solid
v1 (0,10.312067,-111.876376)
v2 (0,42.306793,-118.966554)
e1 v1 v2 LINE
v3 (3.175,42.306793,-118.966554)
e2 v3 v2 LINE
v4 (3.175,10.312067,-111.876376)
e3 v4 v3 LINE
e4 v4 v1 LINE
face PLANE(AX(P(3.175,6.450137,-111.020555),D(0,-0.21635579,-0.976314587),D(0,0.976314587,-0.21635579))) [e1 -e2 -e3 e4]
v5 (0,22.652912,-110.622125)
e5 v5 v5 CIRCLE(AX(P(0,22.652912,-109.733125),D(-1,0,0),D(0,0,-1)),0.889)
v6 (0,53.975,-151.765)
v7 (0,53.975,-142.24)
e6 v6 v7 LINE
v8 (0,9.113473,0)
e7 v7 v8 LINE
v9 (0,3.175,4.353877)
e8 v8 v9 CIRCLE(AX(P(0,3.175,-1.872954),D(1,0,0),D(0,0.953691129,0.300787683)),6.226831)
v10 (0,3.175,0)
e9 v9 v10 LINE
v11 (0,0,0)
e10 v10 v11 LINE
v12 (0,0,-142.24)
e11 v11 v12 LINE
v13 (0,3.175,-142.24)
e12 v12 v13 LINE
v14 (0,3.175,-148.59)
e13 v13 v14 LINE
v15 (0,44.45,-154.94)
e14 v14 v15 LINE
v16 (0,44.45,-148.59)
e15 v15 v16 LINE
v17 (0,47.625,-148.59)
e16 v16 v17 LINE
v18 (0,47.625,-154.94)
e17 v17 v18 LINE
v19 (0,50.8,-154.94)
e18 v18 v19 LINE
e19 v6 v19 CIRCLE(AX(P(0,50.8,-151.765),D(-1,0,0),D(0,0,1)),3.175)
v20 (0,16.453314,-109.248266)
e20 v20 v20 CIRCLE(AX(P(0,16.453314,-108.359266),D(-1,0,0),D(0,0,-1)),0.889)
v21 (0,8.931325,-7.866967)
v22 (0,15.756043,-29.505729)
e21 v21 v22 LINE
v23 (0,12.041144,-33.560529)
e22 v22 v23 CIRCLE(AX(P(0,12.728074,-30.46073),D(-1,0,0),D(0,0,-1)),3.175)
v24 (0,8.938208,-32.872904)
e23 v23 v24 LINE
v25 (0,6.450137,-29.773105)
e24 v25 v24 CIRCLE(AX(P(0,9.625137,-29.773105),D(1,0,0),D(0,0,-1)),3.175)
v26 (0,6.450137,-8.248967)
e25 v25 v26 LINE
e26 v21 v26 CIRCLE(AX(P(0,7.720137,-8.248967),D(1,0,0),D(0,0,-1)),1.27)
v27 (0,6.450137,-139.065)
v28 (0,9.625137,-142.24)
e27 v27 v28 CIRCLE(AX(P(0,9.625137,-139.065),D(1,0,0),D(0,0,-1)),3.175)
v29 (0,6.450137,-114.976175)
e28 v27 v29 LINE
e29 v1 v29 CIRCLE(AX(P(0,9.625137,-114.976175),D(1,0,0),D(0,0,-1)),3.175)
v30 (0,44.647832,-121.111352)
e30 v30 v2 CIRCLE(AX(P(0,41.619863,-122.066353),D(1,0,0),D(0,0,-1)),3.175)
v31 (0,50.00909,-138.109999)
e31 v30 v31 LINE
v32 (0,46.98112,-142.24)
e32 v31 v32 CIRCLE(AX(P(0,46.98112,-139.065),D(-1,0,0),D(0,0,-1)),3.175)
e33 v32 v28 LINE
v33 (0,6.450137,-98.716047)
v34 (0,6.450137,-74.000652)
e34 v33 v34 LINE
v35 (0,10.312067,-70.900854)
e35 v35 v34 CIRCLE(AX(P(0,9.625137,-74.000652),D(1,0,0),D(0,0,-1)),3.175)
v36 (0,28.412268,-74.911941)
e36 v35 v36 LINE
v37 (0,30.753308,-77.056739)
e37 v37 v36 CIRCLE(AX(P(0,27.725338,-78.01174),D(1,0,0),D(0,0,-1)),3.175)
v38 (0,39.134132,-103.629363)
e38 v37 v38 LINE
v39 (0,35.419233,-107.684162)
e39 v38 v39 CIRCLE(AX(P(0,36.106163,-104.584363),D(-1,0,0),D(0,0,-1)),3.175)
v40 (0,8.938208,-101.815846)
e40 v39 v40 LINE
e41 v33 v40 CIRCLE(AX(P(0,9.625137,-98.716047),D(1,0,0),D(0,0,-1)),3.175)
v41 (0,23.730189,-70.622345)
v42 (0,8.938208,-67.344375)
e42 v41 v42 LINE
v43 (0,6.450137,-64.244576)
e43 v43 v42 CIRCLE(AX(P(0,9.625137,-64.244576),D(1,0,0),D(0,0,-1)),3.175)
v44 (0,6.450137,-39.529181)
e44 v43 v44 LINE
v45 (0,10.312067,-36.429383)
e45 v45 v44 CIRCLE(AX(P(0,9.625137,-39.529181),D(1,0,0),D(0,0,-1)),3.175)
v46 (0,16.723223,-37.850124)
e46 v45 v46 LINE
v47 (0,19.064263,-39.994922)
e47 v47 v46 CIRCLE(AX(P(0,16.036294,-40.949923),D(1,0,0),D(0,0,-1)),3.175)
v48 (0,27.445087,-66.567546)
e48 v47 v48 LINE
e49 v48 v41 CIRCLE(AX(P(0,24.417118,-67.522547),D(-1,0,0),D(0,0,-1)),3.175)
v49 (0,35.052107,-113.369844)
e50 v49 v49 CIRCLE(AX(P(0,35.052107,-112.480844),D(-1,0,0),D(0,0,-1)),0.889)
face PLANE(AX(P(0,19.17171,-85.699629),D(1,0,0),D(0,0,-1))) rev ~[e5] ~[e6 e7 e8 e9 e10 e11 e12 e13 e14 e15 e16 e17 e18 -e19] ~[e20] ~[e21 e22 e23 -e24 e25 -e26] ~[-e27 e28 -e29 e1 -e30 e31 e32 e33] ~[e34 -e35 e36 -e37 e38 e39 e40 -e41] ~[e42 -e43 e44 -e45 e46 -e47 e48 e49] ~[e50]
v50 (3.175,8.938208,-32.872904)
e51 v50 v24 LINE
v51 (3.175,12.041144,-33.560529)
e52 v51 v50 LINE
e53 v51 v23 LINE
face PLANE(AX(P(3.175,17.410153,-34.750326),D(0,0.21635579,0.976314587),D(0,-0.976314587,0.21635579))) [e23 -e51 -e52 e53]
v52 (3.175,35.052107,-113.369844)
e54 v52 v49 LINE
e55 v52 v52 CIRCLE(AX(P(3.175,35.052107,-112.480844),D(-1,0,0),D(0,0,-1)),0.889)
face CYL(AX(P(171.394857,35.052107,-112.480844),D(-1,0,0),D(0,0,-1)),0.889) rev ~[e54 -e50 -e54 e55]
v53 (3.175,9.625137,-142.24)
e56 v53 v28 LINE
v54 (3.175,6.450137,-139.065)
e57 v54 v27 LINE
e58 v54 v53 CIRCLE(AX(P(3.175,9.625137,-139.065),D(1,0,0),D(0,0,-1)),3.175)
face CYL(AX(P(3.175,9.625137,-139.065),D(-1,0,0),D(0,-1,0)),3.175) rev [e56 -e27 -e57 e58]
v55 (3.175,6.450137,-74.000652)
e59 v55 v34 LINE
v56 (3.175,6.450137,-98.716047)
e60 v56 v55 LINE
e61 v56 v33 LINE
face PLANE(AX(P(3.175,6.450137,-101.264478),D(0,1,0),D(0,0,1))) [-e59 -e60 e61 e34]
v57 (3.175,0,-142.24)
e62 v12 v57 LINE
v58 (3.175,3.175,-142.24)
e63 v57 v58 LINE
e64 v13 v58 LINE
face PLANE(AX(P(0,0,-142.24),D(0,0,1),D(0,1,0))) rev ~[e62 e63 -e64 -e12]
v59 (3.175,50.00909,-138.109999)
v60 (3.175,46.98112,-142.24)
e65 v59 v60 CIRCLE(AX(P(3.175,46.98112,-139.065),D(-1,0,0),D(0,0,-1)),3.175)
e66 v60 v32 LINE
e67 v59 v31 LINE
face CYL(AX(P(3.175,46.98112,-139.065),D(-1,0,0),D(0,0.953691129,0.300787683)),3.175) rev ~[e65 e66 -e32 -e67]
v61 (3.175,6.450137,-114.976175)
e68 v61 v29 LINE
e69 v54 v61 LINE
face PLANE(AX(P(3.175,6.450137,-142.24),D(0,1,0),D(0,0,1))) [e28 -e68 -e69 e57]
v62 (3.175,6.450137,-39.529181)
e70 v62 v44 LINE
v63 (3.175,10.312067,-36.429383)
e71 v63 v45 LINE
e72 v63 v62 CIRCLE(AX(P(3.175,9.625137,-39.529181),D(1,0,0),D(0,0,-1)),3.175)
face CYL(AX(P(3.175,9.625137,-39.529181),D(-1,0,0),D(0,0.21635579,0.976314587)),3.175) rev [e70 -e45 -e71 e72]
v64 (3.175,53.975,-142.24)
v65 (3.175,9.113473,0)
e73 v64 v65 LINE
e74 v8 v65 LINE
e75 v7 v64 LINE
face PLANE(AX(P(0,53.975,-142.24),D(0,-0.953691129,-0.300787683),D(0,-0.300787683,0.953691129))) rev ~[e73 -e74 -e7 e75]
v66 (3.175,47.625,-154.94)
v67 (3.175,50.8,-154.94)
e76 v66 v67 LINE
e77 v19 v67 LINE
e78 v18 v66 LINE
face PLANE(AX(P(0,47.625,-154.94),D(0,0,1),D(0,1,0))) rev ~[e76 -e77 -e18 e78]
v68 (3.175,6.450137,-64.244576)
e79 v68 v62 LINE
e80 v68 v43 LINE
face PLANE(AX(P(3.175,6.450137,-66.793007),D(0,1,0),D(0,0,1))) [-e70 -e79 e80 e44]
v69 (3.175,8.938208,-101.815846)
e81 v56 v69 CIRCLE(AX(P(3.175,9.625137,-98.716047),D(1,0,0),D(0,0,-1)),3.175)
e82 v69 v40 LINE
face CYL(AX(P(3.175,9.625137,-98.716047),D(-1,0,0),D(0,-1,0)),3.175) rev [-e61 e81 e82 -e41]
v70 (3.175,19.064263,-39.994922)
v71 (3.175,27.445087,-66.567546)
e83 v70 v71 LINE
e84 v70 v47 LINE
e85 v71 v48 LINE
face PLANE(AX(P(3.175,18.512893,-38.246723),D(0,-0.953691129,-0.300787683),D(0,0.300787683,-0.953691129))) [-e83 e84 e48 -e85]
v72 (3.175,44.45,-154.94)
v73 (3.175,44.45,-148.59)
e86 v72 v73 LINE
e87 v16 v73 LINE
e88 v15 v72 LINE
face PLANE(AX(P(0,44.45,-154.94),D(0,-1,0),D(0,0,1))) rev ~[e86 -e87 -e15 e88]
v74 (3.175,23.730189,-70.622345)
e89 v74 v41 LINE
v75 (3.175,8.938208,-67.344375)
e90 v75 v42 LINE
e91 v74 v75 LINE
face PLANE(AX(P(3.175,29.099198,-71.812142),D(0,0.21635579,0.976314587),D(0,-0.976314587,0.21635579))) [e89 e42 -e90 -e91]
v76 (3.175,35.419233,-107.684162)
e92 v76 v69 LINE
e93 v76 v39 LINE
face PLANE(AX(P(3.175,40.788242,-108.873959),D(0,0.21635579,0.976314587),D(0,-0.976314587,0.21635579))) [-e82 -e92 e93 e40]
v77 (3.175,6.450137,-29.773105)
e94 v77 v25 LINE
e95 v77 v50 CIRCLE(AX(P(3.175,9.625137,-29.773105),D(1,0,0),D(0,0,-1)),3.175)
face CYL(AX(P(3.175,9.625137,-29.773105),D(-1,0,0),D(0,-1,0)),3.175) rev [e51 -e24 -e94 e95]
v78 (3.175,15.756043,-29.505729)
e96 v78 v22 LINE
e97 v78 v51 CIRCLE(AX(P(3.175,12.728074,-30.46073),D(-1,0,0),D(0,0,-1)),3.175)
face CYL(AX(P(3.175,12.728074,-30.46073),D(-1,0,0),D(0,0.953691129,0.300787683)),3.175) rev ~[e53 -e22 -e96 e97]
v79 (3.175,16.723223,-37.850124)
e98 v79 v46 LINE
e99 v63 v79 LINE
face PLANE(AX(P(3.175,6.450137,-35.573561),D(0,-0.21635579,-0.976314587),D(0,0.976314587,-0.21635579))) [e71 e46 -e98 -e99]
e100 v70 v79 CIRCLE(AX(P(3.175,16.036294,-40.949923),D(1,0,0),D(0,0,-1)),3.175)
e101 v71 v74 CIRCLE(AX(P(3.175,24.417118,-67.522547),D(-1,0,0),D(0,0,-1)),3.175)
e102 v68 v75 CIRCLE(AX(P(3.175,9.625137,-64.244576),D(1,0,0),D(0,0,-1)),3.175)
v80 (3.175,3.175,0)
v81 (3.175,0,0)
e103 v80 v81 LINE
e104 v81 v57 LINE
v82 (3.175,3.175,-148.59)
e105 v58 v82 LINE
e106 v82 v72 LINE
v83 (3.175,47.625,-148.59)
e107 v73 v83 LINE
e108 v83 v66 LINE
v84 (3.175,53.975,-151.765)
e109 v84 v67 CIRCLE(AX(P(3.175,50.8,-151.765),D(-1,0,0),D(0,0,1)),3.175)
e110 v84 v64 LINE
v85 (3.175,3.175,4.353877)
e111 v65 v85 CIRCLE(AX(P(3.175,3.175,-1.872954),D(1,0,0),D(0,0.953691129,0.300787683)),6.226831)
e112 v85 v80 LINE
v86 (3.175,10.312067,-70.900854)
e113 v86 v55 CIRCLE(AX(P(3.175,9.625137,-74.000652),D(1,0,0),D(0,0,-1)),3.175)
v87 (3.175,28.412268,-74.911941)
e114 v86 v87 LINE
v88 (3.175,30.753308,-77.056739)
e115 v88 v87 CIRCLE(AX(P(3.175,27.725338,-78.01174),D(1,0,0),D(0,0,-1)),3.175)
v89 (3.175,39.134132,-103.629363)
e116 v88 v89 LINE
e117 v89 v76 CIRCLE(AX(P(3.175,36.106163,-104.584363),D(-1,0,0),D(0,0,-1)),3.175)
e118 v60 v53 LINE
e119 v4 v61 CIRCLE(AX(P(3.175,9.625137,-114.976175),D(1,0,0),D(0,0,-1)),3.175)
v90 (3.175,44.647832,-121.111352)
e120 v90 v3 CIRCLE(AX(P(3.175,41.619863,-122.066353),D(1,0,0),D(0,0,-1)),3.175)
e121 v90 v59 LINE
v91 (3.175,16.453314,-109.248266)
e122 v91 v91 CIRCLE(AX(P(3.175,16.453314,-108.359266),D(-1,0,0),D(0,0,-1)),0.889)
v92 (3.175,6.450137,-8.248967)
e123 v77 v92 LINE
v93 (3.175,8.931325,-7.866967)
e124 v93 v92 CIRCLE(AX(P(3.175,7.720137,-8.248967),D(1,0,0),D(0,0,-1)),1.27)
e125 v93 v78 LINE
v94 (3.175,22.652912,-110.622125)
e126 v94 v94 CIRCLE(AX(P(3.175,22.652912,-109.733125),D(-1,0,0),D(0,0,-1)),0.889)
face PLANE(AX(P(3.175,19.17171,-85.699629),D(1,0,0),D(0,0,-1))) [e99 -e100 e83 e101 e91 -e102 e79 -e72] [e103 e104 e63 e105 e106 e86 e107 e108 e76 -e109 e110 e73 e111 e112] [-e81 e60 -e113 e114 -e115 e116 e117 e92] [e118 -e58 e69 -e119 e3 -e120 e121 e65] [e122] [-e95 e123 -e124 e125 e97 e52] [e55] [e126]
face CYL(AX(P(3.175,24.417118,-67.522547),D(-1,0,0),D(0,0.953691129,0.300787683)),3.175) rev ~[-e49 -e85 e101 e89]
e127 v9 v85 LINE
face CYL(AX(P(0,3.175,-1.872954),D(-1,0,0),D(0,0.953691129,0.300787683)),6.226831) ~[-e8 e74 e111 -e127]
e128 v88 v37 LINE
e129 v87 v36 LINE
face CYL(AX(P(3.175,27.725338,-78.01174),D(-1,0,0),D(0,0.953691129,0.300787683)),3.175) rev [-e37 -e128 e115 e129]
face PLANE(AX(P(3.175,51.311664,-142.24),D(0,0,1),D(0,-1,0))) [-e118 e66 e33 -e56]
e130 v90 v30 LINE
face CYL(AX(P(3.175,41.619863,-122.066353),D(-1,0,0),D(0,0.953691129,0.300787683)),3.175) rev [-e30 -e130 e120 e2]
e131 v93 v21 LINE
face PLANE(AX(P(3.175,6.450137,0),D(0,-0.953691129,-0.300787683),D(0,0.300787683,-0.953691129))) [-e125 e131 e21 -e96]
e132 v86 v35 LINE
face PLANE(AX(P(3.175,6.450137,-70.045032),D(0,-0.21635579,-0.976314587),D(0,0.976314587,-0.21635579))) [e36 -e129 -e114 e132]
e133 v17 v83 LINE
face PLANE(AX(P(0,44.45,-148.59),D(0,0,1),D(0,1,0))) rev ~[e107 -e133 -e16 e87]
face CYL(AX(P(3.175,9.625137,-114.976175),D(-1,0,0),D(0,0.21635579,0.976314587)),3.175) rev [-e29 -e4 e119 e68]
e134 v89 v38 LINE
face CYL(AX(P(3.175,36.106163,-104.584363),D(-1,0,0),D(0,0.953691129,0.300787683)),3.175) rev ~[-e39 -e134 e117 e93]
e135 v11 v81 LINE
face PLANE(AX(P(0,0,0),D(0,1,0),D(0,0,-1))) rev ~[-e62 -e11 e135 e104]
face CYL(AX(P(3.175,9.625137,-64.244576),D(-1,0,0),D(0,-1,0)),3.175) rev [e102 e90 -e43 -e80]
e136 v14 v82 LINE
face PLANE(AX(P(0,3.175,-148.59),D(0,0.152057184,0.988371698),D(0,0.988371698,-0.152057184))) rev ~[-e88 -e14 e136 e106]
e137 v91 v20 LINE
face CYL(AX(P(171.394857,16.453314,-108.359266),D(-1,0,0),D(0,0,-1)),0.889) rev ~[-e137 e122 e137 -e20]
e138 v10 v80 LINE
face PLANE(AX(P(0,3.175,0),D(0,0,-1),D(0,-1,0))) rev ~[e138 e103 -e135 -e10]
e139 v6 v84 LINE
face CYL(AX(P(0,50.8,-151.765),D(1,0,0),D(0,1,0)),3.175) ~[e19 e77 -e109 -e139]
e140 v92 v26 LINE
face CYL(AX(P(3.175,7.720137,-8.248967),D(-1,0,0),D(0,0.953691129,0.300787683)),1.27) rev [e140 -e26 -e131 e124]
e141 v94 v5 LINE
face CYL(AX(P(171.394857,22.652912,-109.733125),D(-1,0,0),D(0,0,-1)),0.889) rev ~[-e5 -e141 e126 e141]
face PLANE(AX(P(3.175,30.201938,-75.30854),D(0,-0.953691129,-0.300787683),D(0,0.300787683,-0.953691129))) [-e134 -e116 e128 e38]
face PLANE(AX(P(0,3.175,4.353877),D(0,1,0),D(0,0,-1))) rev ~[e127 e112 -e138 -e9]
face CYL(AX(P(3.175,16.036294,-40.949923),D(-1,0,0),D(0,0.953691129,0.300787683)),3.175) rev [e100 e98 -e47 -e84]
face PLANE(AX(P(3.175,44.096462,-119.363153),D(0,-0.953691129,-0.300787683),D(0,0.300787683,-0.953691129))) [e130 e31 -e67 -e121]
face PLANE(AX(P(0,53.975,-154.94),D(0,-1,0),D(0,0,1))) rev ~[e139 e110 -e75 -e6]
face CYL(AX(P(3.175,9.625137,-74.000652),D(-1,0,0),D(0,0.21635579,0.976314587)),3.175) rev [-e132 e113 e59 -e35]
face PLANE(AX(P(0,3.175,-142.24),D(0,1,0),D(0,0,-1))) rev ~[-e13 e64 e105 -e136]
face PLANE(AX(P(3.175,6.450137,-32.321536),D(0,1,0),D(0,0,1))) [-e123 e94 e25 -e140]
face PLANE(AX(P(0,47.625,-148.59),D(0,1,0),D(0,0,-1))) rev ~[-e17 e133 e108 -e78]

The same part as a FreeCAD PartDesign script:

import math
import FreeCAD as App
import Part
import Sketcher

V = App.Vector
Q = App.Units.Quantity


def edges_at(feature, points):
    """Names of the edges that pass closest to the given points."""
    edges = feature.Shape.Edges
    near = lambda p: min(range(len(edges)), key=lambda i: edges[i].distToShape(Part.Vertex(*p))[0])
    return sorted({f"Edge{near(p) + 1}" for p in points})


def add_polygon(sketch, points):
    """Adds a closed chain of lines whose ends are joined by coincident constraints."""
    first, n = sketch.GeometryCount, len(points)
    for a, b in zip(points, points[1:] + points[:1]):
        sketch.addGeometry(Part.LineSegment(App.Vector(*a, 0), App.Vector(*b, 0)), False)
    for i in range(n):
        sketch.addConstraint(Sketcher.Constraint("Coincident", first + i, 2, first + (i + 1) % n, 1))

doc = App.newDocument("Part")
body = doc.addObject("PartDesign::Body", "Body")

# Sketch on YZ plane
sketch1 = body.newObject("Sketcher::SketchObject", "Sketch")
sketch1.AttachmentSupport = (doc.getObject("YZ_Plane"), [""])
sketch1.MapMode = "FlatFace"
sketch1.addGeometry([
    Part.LineSegment(V(0, 0, 0), V(0, -142.2, 0)),  # 0
    Part.LineSegment(V(0, -142.2, 0), V(3.2, -142.2, 0)),  # 1
    Part.LineSegment(V(3.2, -142.2, 0), V(3.2, -148.6, 0)),  # 2
    Part.LineSegment(V(3.2, -148.6, 0), V(44.5, -154.9, 0)),  # 3
    Part.LineSegment(V(44.5, -154.9, 0), V(44.5, -148.6, 0)),  # 4
    Part.LineSegment(V(44.5, -148.6, 0), V(47.6, -148.6, 0)),  # 5
    Part.LineSegment(V(47.6, -148.6, 0), V(47.6, -154.9, 0)),  # 6
    Part.LineSegment(V(47.6, -154.9, 0), V(54, -154.9, 0)),  # 7
    Part.LineSegment(V(54, -154.9, 0), V(54, -142.2, 0)),  # 8
    Part.LineSegment(V(54, -142.2, 0), V(9.1, 0, 0)),  # 9
    Part.ArcOfCircle(Part.Circle(V(3.2, -1.9, 0), V(0, 0, 1), 6.2), math.radians(18), math.radians(90)),  # 10
    Part.LineSegment(V(3.2, 4.4, 0), V(3.2, 0, 0)),  # 11
    Part.LineSegment(V(3.2, 0, 0), V(0, 0, 0)),  # 12
], False)
sketch1.addConstraint([
    Sketcher.Constraint("Coincident", 0, 2, 1, 1),
    Sketcher.Constraint("Coincident", 1, 2, 2, 1),
    Sketcher.Constraint("Coincident", 2, 2, 3, 1),
    Sketcher.Constraint("Coincident", 3, 2, 4, 1),
    Sketcher.Constraint("Coincident", 4, 2, 5, 1),
    Sketcher.Constraint("Coincident", 5, 2, 6, 1),
    Sketcher.Constraint("Coincident", 6, 2, 7, 1),
    Sketcher.Constraint("Coincident", 7, 2, 8, 1),
    Sketcher.Constraint("Coincident", 8, 2, 9, 1),
    Sketcher.Constraint("Tangent", 9, 2, 10, 1),
    Sketcher.Constraint("Coincident", 10, 2, 11, 1),
    Sketcher.Constraint("Coincident", 11, 2, 12, 1),
    Sketcher.Constraint("Coincident", 12, 2, 0, 1),
    Sketcher.Constraint("Vertical", 0),
    Sketcher.Constraint("Horizontal", 1),
    Sketcher.Constraint("Vertical", 2),
    Sketcher.Constraint("Vertical", 4),
    Sketcher.Constraint("Horizontal", 5),
    Sketcher.Constraint("Vertical", 6),
    Sketcher.Constraint("Horizontal", 7),
    Sketcher.Constraint("Vertical", 8),
    Sketcher.Constraint("Vertical", 11),
    Sketcher.Constraint("Horizontal", 12),
    Sketcher.Constraint("Coincident", 12, 2, -1, 1),
    Sketcher.Constraint("PointOnObject", 9, 2, -1),
    Sketcher.Constraint("Horizontal", 2, 2, 4, 2),
    Sketcher.Constraint("Horizontal", 3, 2, 6, 2),
    Sketcher.Constraint("Horizontal", 1, 2, 8, 2),
    Sketcher.Constraint("Vertical", 10, 3, 1, 2),
    Sketcher.Constraint("Vertical", 2, 2, 10, 2),
    Sketcher.Constraint("Equal", 1, 5),
    Sketcher.Constraint("Equal", 7, 2),
    Sketcher.Constraint("Equal", 2, 4),
    Sketcher.Constraint("DistanceY", 0, 2, 0, 1, Q("5.6 in")),
    Sketcher.Constraint("DistanceY", 8, 1, 8, 2, Q("0.5 in")),
    Sketcher.Constraint("DistanceX", 2, 2, 7, 2, Q("2 in")),
    Sketcher.Constraint("DistanceX", 1, 1, 1, 2, Q("0.125 in")),
    Sketcher.Constraint("Radius", 10, 6.226831),
])
pad1 = body.newObject("PartDesign::Pad", "Pad")
pad1.Profile = sketch1
pad1.Length = Q("0.125 in")

# Sketch on YZ plane
sketch2 = body.newObject("Sketcher::SketchObject", "Sketch001")
sketch2.AttachmentSupport = (doc.getObject("YZ_Plane"), [""])
sketch2.MapMode = "FlatFace"
sketch2.AttachmentOffset = App.Placement(V(0, 0, 0.125 * 25.4), App.Rotation())
add_polygon(sketch2, [(6, -142), (51, -142), (44, -119), (6, -111)])  # lines 0-3
add_polygon(sketch2, [(6, -101), (41, -109), (30, -75), (6, -70)])  # lines 4-7
add_polygon(sketch2, [(6, -67), (29, -72), (19, -38), (6, -36)])  # lines 8-11
add_polygon(sketch2, [(17, -35), (6, 0), (6, -32)])  # lines 12-14
sketch2.addConstraint([
    Sketcher.Constraint("Horizontal", 0),
    Sketcher.Constraint("Vertical", 3),
    Sketcher.Constraint("Vertical", 7),
    Sketcher.Constraint("Vertical", 11),
    Sketcher.Constraint("Vertical", 13),
    Sketcher.Constraint("PointOnObject", 12, 2, -1),
    Sketcher.Constraint("Parallel", 2, 4),
    Sketcher.Constraint("Parallel", 1, 5),
    Sketcher.Constraint("Parallel", 4, 6),
    Sketcher.Constraint("Parallel", 6, 8),
    Sketcher.Constraint("Parallel", 5, 9),
    Sketcher.Constraint("Parallel", 8, 10),
    Sketcher.Constraint("Parallel", 9, 12),
    Sketcher.Constraint("Parallel", 10, 14),
    Sketcher.Constraint("Vertical", 3, 2, 6, 2),
    Sketcher.Constraint("Vertical", 7, 2, 10, 2),
    Sketcher.Constraint("Vertical", 11, 2, 12, 2),
    Sketcher.Constraint("Equal", 3, 7),
    Sketcher.Constraint("Equal", 7, 11),
    Sketcher.Constraint("DistanceY", 0, 2, -1, 1, Q("5.6 in")),
    Sketcher.Constraint("Distance", 10, 12.355399),
    Sketcher.Constraint("DistanceX", 1, 2, 0, 2, 7.215202),
    Sketcher.Constraint("DistanceY", 1, 2, 2, 2, 8.342598),
    Sketcher.Constraint("DistanceX", 2, 2, 5, 2, 23.7518),
    Sketcher.Constraint("Distance", 1, 23.98769),
    Sketcher.Constraint("Distance", 4, 35.171148),
    Sketcher.Constraint("DistanceY", 13, 2, 13, 1, 32.321536),
    Sketcher.Constraint("DistanceY", 4, 2, -1, 1, 108.873959),
    Sketcher.Constraint("DistanceY", 10, 2, -1, 1, 35.573561),
    Sketcher.Constraint("DistanceX", -1, 1, 0, 2, 51.311664),
])
pocket1 = body.newObject("PartDesign::Pocket", "Pocket")
pocket1.Profile = sketch2
pocket1.Type = "ThroughAll"
doc.recompute()

fillet = body.newObject("PartDesign::Fillet", "Fillet")
fillet.Base = (pocket1, edges_at(pocket1, [
    (1.587, 44.096, -119.363),
    (1.587, 6.45, -142.24),
    (1.587, 6.45, -111.021),
    (1.587, 6.45, -32.322),
    (1.587, 18.513, -38.247),
    (1.587, 6.45, -66.793),
    (1.587, 6.45, -35.574),
    (1.587, 30.202, -75.309),
    (1.587, 6.45, -101.264),
    (1.587, 6.45, -70.045),
]))
fillet.Radius = Q("0.125 in")
doc.recompute()

fillet2 = body.newObject("PartDesign::Fillet", "Fillet001")
fillet2.Base = (fillet, edges_at(fillet, [
    (1.587, 51.312, -142.24),
    (1.587, 17.41, -34.75),
    (1.587, 29.099, -71.812),
    (1.587, 40.788, -108.874),
]))
fillet2.Radius = Q("0.125 in")
doc.recompute()

fillet3 = body.newObject("PartDesign::Fillet", "Fillet002")
fillet3.Base = (fillet2, edges_at(fillet2, [(1.587, 53.975, -154.94)]))
fillet3.Radius = Q("0.125 in")
doc.recompute()

fillet4 = body.newObject("PartDesign::Fillet", "Fillet003")
fillet4.Base = (fillet3, edges_at(fillet3, [(1.587, 6.45, 0)]))
fillet4.Radius = Q("0.05 in")

# Sketch on YZ plane
sketch3 = body.newObject("Sketcher::SketchObject", "Sketch002")
sketch3.AttachmentSupport = (doc.getObject("YZ_Plane"), [""])
sketch3.MapMode = "FlatFace"
sketch3.AttachmentOffset = App.Placement(V(0, 0, 0.125 * 25.4), App.Rotation())
sketch3.addGeometry([
    Part.Circle(V(35.1, -112.5, 0), V(0, 0, 1), 0.9),
    Part.Circle(V(22.7, -109.7, 0), V(0, 0, 1), 0.9),
    Part.Circle(V(16.5, -108.4, 0), V(0, 0, 1), 0.9),
], False)
sketch3.addConstraint([
    Sketcher.Constraint("Equal", 0, 1),
    Sketcher.Constraint("Equal", 1, 2),
    Sketcher.Constraint("Diameter", 0, Q("0.07 in")),
    Sketcher.Constraint("DistanceX", -1, 1, 1, 3, 22.652912),
    Sketcher.Constraint("DistanceY", 0, 3, 1, 3, 2.747719),
    Sketcher.Constraint("DistanceY", 1, 3, 2, 3, 1.373859),
    Sketcher.Constraint("DistanceX", -1, 1, 0, 3, 35.052107),
    Sketcher.Constraint("DistanceY", 0, 3, -1, 1, 112.480844),
    Sketcher.Constraint("DistanceX", -1, 1, 2, 3, 16.453314),
])
doc.recompute()
hole = body.newObject("PartDesign::Hole", "Hole")
hole.Profile = sketch3
hole.ThreadType = "None"
hole.Diameter = Q("0.07 in")
hole.DepthType = "ThroughAll"

# Sketch on YZ plane
sketch4 = body.newObject("Sketcher::SketchObject", "Sketch003")
sketch4.AttachmentSupport = (doc.getObject("YZ_Plane"), [""])
sketch4.MapMode = "FlatFace"
sketch4.AttachmentOffset = App.Placement(V(0, 0, 524.251745), App.Rotation())
sketch4.addGeometry(Part.Circle(V(38.7, 0, 0), V(0, 0, 1), 0.9), False)
sketch4.addConstraint([
    Sketcher.Constraint("PointOnObject", 0, 3, -1),
    Sketcher.Constraint("Diameter", 0, Q("0.07 in")),
    Sketcher.Constraint("DistanceX", -1, 1, 0, 3, 38.733811),
])
doc.recompute()
hole2 = body.newObject("PartDesign::Hole", "Hole001")
hole2.Profile = sketch4
hole2.ThreadType = "None"
hole2.Diameter = Q("0.07 in")
hole2.DepthType = "ThroughAll"

doc.recompute()
